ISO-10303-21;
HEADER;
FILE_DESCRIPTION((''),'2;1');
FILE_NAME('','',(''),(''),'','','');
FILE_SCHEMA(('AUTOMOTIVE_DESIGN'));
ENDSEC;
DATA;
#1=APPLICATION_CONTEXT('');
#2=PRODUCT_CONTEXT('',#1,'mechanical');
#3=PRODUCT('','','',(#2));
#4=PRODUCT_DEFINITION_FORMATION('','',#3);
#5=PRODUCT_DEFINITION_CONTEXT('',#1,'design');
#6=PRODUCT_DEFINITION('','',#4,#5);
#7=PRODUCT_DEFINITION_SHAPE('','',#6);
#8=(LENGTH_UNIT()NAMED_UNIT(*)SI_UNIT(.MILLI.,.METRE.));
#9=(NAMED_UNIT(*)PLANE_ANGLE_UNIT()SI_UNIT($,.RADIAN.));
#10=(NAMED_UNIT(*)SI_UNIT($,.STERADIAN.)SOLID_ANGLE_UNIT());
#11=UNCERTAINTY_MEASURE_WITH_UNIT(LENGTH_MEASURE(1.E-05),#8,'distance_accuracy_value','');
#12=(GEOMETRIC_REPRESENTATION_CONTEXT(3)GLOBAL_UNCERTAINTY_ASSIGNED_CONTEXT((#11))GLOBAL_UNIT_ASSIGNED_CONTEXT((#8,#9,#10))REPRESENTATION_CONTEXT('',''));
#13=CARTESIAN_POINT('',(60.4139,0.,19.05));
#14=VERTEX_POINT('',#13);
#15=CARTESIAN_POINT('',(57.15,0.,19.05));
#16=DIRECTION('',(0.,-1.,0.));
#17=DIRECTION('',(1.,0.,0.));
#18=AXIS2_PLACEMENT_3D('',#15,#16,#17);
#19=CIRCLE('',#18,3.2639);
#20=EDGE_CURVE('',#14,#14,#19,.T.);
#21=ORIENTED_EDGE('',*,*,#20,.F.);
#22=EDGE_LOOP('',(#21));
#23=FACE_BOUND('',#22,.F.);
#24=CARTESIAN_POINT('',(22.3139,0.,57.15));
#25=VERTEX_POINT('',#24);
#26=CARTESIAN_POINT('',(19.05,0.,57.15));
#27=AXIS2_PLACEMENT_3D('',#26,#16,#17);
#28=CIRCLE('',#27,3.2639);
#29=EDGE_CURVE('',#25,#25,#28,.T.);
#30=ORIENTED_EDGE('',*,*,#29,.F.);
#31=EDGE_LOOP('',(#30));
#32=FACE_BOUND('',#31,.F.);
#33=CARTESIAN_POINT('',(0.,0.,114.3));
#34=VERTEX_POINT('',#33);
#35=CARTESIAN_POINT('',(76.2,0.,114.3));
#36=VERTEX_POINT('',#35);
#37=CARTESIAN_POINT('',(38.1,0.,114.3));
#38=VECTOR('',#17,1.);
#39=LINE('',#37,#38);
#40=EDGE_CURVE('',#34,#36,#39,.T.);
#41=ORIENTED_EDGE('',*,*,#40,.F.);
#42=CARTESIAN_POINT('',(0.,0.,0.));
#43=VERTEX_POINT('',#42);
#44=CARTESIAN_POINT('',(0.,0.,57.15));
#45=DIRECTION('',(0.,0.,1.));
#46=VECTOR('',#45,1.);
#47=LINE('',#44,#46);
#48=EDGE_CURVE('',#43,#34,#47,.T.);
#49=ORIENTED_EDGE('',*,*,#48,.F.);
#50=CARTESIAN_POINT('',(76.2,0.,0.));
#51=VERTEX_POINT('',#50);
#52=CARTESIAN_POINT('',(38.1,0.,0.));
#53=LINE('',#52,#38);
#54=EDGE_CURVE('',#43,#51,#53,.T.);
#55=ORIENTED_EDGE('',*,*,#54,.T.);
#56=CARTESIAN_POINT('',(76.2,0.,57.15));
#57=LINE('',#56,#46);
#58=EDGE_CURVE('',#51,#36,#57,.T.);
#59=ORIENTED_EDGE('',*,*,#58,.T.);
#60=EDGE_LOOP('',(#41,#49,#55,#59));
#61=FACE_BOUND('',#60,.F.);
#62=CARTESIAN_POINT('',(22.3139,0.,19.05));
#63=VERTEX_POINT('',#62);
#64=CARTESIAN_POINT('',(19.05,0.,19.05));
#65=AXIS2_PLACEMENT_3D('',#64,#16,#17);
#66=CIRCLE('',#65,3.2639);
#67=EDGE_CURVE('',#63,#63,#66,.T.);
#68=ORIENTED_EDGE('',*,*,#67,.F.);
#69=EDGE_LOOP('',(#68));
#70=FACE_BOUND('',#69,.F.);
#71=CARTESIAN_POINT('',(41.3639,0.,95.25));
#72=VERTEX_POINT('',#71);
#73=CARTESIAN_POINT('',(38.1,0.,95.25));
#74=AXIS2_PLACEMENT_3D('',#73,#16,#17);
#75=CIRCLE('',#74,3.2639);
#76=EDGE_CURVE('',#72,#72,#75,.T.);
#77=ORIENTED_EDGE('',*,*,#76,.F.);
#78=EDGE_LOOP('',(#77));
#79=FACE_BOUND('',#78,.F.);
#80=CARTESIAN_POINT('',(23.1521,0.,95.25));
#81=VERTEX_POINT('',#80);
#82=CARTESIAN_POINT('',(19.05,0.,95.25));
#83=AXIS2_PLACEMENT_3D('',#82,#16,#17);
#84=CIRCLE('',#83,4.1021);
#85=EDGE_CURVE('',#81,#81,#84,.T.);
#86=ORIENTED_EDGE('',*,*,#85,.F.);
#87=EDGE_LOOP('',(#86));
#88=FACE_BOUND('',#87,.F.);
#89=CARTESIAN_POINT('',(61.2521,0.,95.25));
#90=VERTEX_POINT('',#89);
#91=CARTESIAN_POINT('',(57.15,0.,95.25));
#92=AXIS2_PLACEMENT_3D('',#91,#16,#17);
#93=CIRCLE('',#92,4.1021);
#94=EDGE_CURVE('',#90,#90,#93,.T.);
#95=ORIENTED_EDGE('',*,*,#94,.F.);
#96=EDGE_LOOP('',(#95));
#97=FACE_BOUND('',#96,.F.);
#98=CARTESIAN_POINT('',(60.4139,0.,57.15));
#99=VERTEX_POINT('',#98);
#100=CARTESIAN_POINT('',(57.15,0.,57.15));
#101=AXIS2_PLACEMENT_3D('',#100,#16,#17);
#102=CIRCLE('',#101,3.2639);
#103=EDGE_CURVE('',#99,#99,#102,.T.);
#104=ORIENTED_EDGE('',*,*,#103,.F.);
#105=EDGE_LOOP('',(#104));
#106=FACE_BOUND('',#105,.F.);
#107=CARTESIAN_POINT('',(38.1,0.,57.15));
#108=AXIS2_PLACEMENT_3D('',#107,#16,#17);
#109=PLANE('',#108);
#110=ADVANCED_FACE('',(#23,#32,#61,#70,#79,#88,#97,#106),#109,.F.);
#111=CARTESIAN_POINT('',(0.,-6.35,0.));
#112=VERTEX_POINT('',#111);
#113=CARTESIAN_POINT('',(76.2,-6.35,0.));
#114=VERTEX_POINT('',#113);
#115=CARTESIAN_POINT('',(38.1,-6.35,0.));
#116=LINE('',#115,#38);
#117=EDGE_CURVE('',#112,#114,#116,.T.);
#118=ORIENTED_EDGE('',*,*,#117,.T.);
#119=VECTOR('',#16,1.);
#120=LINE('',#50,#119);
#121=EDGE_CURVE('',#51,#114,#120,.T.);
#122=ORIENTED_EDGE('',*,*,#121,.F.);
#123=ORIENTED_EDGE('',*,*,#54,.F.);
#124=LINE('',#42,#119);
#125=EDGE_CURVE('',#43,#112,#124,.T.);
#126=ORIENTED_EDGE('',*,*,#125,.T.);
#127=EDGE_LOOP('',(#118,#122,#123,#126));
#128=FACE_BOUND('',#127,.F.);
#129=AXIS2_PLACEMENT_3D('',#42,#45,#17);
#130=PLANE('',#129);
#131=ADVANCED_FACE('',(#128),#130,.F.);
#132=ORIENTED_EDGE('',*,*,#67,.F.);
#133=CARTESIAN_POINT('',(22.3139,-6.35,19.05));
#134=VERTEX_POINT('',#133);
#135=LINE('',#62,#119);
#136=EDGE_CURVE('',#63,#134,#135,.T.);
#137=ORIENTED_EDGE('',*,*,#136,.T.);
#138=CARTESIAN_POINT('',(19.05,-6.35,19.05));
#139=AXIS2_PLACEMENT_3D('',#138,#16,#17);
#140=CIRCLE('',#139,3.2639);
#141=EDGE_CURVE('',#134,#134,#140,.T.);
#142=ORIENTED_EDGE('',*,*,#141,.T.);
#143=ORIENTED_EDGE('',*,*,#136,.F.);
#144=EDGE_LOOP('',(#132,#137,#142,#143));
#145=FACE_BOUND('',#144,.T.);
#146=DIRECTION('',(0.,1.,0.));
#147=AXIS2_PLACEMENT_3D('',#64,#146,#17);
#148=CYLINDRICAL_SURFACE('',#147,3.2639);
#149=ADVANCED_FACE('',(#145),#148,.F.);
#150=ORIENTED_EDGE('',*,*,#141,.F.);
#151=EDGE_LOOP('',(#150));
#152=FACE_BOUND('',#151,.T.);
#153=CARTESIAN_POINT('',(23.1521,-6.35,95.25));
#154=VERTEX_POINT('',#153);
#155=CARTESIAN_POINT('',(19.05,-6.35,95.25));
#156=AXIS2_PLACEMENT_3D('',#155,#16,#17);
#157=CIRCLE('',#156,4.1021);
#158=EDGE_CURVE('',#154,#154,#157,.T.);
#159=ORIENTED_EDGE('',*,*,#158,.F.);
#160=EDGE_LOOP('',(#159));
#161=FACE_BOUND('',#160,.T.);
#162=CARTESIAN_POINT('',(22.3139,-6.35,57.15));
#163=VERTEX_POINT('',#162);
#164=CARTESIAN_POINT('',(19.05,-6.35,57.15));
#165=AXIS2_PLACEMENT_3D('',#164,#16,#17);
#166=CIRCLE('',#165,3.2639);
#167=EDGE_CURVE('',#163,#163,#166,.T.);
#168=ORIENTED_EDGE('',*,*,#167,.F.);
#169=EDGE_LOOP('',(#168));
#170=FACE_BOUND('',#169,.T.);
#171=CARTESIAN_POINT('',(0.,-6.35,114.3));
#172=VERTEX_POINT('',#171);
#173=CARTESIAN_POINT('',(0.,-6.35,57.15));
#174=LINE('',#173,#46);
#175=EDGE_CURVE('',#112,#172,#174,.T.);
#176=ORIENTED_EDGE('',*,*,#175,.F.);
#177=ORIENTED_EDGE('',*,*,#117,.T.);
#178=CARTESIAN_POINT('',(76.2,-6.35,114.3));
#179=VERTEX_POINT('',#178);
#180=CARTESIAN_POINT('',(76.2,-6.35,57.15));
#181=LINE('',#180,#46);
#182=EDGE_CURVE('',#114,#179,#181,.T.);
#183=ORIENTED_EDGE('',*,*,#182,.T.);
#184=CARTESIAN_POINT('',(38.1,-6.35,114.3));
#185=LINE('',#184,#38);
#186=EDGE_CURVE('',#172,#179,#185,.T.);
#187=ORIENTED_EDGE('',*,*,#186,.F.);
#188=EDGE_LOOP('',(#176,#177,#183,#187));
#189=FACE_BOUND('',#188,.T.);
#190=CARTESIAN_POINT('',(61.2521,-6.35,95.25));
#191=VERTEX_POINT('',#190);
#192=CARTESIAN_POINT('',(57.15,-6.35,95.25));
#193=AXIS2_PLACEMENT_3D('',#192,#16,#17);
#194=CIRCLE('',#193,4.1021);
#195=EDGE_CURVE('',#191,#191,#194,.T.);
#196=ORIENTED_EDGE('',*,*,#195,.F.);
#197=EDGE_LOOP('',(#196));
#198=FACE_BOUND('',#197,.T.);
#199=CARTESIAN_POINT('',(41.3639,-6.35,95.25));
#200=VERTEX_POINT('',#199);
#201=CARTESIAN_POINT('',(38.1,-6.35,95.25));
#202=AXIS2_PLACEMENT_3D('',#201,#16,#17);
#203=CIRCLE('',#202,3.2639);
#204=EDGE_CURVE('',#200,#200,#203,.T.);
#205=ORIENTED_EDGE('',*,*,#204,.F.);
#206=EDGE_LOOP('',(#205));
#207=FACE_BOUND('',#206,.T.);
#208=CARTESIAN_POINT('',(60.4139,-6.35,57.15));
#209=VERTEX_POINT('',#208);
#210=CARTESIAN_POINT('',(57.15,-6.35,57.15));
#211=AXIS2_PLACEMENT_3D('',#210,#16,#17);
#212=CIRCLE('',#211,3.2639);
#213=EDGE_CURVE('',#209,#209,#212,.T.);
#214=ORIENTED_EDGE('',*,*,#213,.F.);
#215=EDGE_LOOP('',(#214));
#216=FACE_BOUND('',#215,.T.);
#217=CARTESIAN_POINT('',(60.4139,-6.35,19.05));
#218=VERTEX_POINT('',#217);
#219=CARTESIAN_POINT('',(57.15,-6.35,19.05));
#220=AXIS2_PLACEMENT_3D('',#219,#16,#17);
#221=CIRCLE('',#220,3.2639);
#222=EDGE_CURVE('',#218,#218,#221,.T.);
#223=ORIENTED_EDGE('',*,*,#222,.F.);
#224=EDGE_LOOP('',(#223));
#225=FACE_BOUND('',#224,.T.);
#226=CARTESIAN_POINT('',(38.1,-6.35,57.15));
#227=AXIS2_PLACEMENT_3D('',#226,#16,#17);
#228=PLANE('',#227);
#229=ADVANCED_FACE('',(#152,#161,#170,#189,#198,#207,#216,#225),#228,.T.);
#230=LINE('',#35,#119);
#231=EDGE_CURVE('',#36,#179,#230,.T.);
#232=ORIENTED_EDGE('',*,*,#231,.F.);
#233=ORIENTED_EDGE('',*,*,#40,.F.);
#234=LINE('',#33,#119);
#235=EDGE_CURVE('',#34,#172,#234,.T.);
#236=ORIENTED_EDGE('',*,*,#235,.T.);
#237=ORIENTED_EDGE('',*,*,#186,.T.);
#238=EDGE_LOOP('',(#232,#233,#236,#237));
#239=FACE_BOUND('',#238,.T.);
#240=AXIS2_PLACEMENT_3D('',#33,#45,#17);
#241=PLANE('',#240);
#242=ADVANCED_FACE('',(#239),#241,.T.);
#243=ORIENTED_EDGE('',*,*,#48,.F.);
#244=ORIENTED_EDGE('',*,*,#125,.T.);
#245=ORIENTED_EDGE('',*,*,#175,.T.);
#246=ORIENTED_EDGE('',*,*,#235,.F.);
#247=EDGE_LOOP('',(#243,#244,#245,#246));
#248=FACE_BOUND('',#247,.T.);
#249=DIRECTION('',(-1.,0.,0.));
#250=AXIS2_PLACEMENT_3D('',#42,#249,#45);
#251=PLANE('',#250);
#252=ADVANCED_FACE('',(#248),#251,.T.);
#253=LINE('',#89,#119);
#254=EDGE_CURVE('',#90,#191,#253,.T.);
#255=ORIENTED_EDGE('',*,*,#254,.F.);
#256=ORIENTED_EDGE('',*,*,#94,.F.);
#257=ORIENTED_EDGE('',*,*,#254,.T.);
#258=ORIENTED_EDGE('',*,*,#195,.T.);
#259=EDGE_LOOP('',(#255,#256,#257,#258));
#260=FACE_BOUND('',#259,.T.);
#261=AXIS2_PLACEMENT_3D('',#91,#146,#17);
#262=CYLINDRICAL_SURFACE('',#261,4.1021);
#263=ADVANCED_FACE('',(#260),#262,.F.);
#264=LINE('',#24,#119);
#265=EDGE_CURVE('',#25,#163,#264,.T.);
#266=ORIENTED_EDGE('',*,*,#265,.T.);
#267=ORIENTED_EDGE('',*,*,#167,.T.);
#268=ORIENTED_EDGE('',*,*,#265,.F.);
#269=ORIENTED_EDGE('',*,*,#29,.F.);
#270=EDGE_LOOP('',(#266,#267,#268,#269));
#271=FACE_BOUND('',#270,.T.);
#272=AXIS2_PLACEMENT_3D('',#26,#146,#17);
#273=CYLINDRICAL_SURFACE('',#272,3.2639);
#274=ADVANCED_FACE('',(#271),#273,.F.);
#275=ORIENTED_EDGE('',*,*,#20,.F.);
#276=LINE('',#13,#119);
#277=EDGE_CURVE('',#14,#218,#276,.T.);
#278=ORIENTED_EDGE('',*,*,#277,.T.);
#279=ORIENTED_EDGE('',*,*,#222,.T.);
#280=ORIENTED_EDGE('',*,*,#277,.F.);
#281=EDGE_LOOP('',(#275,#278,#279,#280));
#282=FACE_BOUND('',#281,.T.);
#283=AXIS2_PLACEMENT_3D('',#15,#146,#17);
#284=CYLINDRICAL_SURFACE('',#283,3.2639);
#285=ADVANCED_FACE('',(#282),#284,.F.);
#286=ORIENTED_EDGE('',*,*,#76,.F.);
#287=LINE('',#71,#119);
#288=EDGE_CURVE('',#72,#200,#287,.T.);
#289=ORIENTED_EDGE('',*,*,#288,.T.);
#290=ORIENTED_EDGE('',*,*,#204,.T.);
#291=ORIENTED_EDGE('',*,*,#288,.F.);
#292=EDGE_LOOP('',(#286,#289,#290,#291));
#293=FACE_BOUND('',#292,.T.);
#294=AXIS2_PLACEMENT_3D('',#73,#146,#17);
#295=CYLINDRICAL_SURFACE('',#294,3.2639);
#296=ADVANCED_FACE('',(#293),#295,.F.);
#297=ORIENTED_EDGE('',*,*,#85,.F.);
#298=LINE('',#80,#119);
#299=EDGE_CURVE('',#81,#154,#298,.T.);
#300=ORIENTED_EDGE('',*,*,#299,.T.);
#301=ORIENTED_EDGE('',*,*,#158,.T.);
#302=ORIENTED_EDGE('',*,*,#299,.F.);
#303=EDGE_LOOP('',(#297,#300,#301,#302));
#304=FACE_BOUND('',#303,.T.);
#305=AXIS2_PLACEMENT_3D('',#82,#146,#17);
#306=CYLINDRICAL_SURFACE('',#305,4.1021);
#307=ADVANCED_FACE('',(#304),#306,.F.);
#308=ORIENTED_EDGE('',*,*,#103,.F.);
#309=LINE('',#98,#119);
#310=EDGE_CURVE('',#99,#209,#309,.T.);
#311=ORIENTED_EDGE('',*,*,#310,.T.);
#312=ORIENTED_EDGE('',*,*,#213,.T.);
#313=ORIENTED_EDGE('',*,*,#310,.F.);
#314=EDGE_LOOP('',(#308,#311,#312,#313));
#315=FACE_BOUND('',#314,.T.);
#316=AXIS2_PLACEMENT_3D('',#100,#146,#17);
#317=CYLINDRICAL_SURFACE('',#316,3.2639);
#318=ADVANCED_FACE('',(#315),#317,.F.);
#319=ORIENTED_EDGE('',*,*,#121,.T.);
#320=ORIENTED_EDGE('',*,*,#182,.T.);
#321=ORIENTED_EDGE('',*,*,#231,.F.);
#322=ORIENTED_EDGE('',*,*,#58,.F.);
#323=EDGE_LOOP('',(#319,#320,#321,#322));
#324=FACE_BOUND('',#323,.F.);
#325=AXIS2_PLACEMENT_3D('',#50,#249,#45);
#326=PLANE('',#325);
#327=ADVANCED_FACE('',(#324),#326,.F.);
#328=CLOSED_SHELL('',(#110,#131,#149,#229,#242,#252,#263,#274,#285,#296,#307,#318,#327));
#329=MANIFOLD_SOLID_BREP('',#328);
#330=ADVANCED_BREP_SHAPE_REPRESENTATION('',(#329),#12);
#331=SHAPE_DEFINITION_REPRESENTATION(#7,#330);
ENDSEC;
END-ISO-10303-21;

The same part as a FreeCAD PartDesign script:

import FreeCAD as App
import Part
import Sketcher

V = App.Vector
Q = App.Units.Quantity

doc = App.newDocument("Part")
body = doc.addObject("PartDesign::Body", "Body")

sketch1 = doc.addObject("Sketcher::SketchObject", "Sketch")
body.addObject(sketch1)
sketch1.AttachmentSupport = (doc.XZ_Plane, [""])
sketch1.MapMode = "FlatFace"
sketch1.addGeometry([
    Part.LineSegment(V(0, 114.3, 0), V(0, 0, 0)),
    Part.LineSegment(V(0, 0, 0), V(76.2, 0, 0)),
    Part.LineSegment(V(76.2, 0, 0), V(76.2, 114.3, 0)),
    Part.LineSegment(V(76.2, 114.3, 0), V(0, 114.3, 0)),
    Part.Circle(V(19.1, 19.1, 0), V(0, 0, 1), 3.3),
    Part.Circle(V(19.1, 57.1, 0), V(0, 0, 1), 3.3),
    Part.Circle(V(57.1, 19.1, 0), V(0, 0, 1), 3.3),
    Part.Circle(V(57.1, 57.1, 0), V(0, 0, 1), 3.3),
    Part.Circle(V(19.1, 95.2, 0), V(0, 0, 1), 4.1),
    Part.Circle(V(38.1, 95.2, 0), V(0, 0, 1), 3.3),
    Part.Circle(V(57.1, 95.2, 0), V(0, 0, 1), 4.1),
], False)
sketch1.addConstraint([
    Sketcher.Constraint("Coincident", 0, 2, 1, 1),
    Sketcher.Constraint("Coincident", 1, 2, 2, 1),
    Sketcher.Constraint("Coincident", 2, 2, 3, 1),
    Sketcher.Constraint("Coincident", 3, 2, 0, 1),
    Sketcher.Constraint("Vertical", 0),
    Sketcher.Constraint("Horizontal", 1),
    Sketcher.Constraint("Vertical", 2),
    Sketcher.Constraint("Horizontal", 3),
    Sketcher.Constraint("Coincident", 0, 2, -1, 1),
    Sketcher.Constraint("Equal", 4, 5),
    Sketcher.Constraint("Equal", 5, 6),
    Sketcher.Constraint("Equal", 6, 7),
    Sketcher.Constraint("Equal", 7, 9),
    Sketcher.Constraint("Equal", 8, 10),
    Sketcher.Constraint("Horizontal", 4, 3, 6, 3),
    Sketcher.Constraint("Horizontal", 5, 3, 7, 3),
    Sketcher.Constraint("Horizontal", 8, 3, 9, 3),
    Sketcher.Constraint("Horizontal", 9, 3, 10, 3),
    Sketcher.Constraint("Vertical", 4, 3, 5, 3),
    Sketcher.Constraint("Vertical", 6, 3, 7, 3),
    Sketcher.Constraint("Vertical", 5, 3, 8, 3),
    Sketcher.Constraint("Vertical", 7, 3, 10, 3),
    Sketcher.Constraint("DistanceX", 1, 1, 1, 2, Q("3 in")),
    Sketcher.Constraint("Diameter", 4, Q("0.257 in")),
    Sketcher.Constraint("Diameter", 8, Q("0.323 in")),
    Sketcher.Constraint("DistanceY", 0, 2, 0, 1, Q("4.5 in")),
    Sketcher.Constraint("DistanceY", 4, 3, 8, 3, Q("3 in")),
    Sketcher.Constraint("DistanceX", -1, 1, 9, 3, Q("1.5 in")),
    Sketcher.Constraint("DistanceY", 4, 3, 5, 3, Q("1.5 in")),
    Sketcher.Constraint("DistanceX", 4, 3, 6, 3, Q("1.5 in")),
    Sketcher.Constraint("DistanceX", -1, 1, 4, 3, Q("0.75 in")),
    Sketcher.Constraint("DistanceY", -1, 1, 4, 3, Q("0.75 in")),
])
pad1 = doc.addObject("PartDesign::Pad", "Pad")
body.addObject(pad1)
pad1.Profile = sketch1
pad1.Length = Q("0.25 in")

doc.recompute()
